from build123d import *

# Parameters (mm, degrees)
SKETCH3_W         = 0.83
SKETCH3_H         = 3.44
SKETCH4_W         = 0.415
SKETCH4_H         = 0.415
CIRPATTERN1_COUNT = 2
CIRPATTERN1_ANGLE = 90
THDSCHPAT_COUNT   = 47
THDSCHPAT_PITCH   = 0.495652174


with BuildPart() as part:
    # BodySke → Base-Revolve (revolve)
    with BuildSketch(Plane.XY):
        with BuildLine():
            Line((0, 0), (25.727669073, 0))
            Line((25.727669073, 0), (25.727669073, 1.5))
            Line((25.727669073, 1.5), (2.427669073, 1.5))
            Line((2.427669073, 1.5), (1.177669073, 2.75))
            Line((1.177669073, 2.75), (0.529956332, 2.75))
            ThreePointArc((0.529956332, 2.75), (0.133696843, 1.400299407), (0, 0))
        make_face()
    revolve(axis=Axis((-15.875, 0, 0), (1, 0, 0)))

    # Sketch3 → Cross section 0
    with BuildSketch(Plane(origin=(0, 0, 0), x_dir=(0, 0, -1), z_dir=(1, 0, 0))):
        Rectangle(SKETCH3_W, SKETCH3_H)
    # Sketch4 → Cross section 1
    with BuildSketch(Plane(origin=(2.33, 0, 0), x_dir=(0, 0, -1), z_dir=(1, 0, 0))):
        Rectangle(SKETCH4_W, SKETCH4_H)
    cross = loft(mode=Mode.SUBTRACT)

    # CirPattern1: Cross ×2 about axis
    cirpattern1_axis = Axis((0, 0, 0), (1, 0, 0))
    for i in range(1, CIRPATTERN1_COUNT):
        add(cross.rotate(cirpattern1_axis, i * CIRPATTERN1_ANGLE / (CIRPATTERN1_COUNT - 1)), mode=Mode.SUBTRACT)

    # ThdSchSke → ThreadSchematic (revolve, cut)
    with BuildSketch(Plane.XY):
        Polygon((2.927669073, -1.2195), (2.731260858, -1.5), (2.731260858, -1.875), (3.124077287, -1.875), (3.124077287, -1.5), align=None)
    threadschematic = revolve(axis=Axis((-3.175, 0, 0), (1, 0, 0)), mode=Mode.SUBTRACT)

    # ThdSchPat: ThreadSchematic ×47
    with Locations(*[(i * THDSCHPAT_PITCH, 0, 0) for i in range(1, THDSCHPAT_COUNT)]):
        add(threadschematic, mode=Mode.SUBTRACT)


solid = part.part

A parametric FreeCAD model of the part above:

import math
import FreeCAD as App
import Part
import Sketcher

V = App.Vector
Q = App.Units.Quantity


def add_polygon(sketch, points):
    """Adds a closed chain of lines whose ends are joined by coincident constraints."""
    first, n = sketch.GeometryCount, len(points)
    for a, b in zip(points, points[1:] + points[:1]):
        sketch.addGeometry(Part.LineSegment(App.Vector(*a, 0), App.Vector(*b, 0)), False)
    for i in range(n):
        sketch.addConstraint(Sketcher.Constraint("Coincident", first + i, 2, first + (i + 1) % n, 1))

doc = App.newDocument("Part")
body = doc.addObject("PartDesign::Body", "Body")

# Sketch on XY plane
sketch1 = doc.addObject("Sketcher::SketchObject", "Sketch")
body.addObject(sketch1)
sketch1.AttachmentSupport = (doc.XY_Plane, [""])
sketch1.MapMode = "FlatFace"
sketch1.addGeometry(Part.LineSegment(V(0, 0, 0), V(25.7, 0, 0)), False)
sketch1.addGeometry(Part.LineSegment(V(25.7, 0, 0), V(25.7, 1.5, 0)), False)
sketch1.addGeometry(Part.LineSegment(V(25.7, 1.5, 0), V(2.4, 1.5, 0)), False)
sketch1.addGeometry(Part.LineSegment(V(2.4, 1.5, 0), V(1.2, 2.8, 0)), False)
sketch1.addGeometry(Part.LineSegment(V(1.2, 2.8, 0), V(0.5, 2.8, 0)), False)
sketch1.addGeometry(Part.ArcOfCircle(Part.Circle(V(7.4, 0, 0), V(0, 0, 1), 7.4), math.radians(158), math.radians(180)), False)
sketch1.addConstraint(Sketcher.Constraint("Coincident", 0, 2, 1, 1))
sketch1.addConstraint(Sketcher.Constraint("Coincident", 1, 2, 2, 1))
sketch1.addConstraint(Sketcher.Constraint("Coincident", 2, 2, 3, 1))
sketch1.addConstraint(Sketcher.Constraint("Coincident", 3, 2, 4, 1))
sketch1.addConstraint(Sketcher.Constraint("Coincident", 4, 2, 5, 1))
sketch1.addConstraint(Sketcher.Constraint("Coincident", 5, 2, 0, 1))
sketch1.addConstraint(Sketcher.Constraint("Horizontal", 0))
sketch1.addConstraint(Sketcher.Constraint("Vertical", 1))
sketch1.addConstraint(Sketcher.Constraint("Horizontal", 2))
sketch1.addConstraint(Sketcher.Constraint("Horizontal", 4))
sketch1.addConstraint(Sketcher.Constraint("Coincident", 5, 2, -1, 1))
sketch1.addConstraint(Sketcher.Constraint("PointOnObject", 5, 3, -1))
sketch1.addConstraint(Sketcher.Constraint("Radius", 5, 7.4))
sketch1.addConstraint(Sketcher.Constraint("Angle", 3, Q("135 deg")))
sketch1.addConstraint(Sketcher.Constraint("DistanceX", 2, 2, 2, 1, 23.3))
sketch1.addConstraint(Sketcher.Constraint("DistanceY", 1, 1, 1, 2, 1.5))
sketch1.addConstraint(Sketcher.Constraint("DistanceY", -1, 1, 3, 2, 2.75))
sketch1.addConstraint(Sketcher.Constraint("DistanceX", 0, 1, 0, 2, 25.727669))
revolution = doc.addObject("PartDesign::Revolution", "Revolution")
body.addObject(revolution)
revolution.Profile = sketch1
revolution.ReferenceAxis = (sketch1, ["H_Axis"])
revolution.Angle = 360

# Sketch on YZ plane
sketch2 = doc.addObject("Sketcher::SketchObject", "Sketch001")
body.addObject(sketch2)
sketch2.AttachmentSupport = (doc.YZ_Plane, [""])
sketch2.MapMode = "FlatFace"
add_polygon(sketch2, [(1.7, 0.4), (-1.7, 0.4), (-1.7, -0.4), (1.7, -0.4)])  # lines 0-3
sketch2.addConstraint(Sketcher.Constraint("Horizontal", 0))
sketch2.addConstraint(Sketcher.Constraint("Vertical", 1))
sketch2.addConstraint(Sketcher.Constraint("Horizontal", 2))
sketch2.addConstraint(Sketcher.Constraint("Vertical", 3))
sketch2.addConstraint(Sketcher.Constraint("Symmetric", 0, 2, 2, 2, -1, 1))
sketch2.addConstraint(Sketcher.Constraint("DistanceX", 0, 2, 0, 1, 3.44))
sketch2.addConstraint(Sketcher.Constraint("DistanceY", 1, 2, 1, 1, 0.83))

# Sketch on YZ plane
sketch3 = doc.addObject("Sketcher::SketchObject", "Sketch002")
body.addObject(sketch3)
sketch3.AttachmentSupport = (doc.YZ_Plane, [""])
sketch3.MapMode = "FlatFace"
sketch3.AttachmentOffset = App.Placement(V(0, 0, 2.33), App.Rotation())
add_polygon(sketch3, [(0.21, 0.21), (-0.21, 0.21), (-0.21, -0.21), (0.21, -0.21)])  # lines 0-3
sketch3.addConstraint(Sketcher.Constraint("Horizontal", 0))
sketch3.addConstraint(Sketcher.Constraint("Vertical", 1))
sketch3.addConstraint(Sketcher.Constraint("Horizontal", 2))
sketch3.addConstraint(Sketcher.Constraint("Vertical", 3))
sketch3.addConstraint(Sketcher.Constraint("Symmetric", 0, 2, 2, 2, -1, 1))
sketch3.addConstraint(Sketcher.Constraint("Equal", 2, 1))
sketch3.addConstraint(Sketcher.Constraint("DistanceX", 0, 2, 0, 1, 0.415))

subtractiveloft = doc.addObject("PartDesign::SubtractiveLoft", "SubtractiveLoft")
body.addObject(subtractiveloft)
subtractiveloft.Profile = sketch2
subtractiveloft.Sections = [sketch3]
doc.recompute()

polarpattern = doc.addObject("PartDesign::PolarPattern", "PolarPattern")
body.addObject(polarpattern)
polarpattern.Originals = [subtractiveloft]
polarpattern.Axis = (doc.X_Axis, [""])
polarpattern.Angle = 90
polarpattern.Occurrences = 2
body.Tip = polarpattern

# Sketch on XY plane
sketch4 = doc.addObject("Sketcher::SketchObject", "Sketch003")
body.addObject(sketch4)
sketch4.AttachmentSupport = (doc.XY_Plane, [""])
sketch4.MapMode = "FlatFace"
add_polygon(sketch4, [(2.93, -1.22), (2.73, -1.5), (2.73, -1.88), (3.12, -1.88), (3.12, -1.5)])  # lines 0-4
sketch4.addConstraint(Sketcher.Constraint("Vertical", 1))
sketch4.addConstraint(Sketcher.Constraint("Horizontal", 2))
sketch4.addConstraint(Sketcher.Constraint("Vertical", 3))
sketch4.addConstraint(Sketcher.Constraint("Horizontal", 0, 2, 3, 2))
sketch4.addConstraint(Sketcher.Constraint("Equal", 0, 4))
sketch4.addConstraint(Sketcher.Constraint("Angle", 0, Q("-125 deg")))
sketch4.addConstraint(Sketcher.Constraint("DistanceY", 0, 2, -1, 1, 1.5))
sketch4.addConstraint(Sketcher.Constraint("DistanceY", 1, 2, 1, 1, 0.375))
sketch4.addConstraint(Sketcher.Constraint("DistanceY", 4, 2, -1, 1, 1.2195))
sketch4.addConstraint(Sketcher.Constraint("DistanceX", -1, 1, 0, 2, 2.731261))
groove = doc.addObject("PartDesign::Groove", "Groove")
body.addObject(groove)
groove.Profile = sketch4
groove.ReferenceAxis = (sketch4, ["H_Axis"])
groove.Angle = 360
doc.recompute()

linearpattern = doc.addObject("PartDesign::LinearPattern", "LinearPattern")
body.addObject(linearpattern)
linearpattern.Originals = [groove]
linearpattern.Direction = (doc.X_Axis, [""])
linearpattern.Mode = "offset"
linearpattern.Offset = 0.495652
linearpattern.Occurrences = 47
body.Tip = linearpattern

doc.recompute()
